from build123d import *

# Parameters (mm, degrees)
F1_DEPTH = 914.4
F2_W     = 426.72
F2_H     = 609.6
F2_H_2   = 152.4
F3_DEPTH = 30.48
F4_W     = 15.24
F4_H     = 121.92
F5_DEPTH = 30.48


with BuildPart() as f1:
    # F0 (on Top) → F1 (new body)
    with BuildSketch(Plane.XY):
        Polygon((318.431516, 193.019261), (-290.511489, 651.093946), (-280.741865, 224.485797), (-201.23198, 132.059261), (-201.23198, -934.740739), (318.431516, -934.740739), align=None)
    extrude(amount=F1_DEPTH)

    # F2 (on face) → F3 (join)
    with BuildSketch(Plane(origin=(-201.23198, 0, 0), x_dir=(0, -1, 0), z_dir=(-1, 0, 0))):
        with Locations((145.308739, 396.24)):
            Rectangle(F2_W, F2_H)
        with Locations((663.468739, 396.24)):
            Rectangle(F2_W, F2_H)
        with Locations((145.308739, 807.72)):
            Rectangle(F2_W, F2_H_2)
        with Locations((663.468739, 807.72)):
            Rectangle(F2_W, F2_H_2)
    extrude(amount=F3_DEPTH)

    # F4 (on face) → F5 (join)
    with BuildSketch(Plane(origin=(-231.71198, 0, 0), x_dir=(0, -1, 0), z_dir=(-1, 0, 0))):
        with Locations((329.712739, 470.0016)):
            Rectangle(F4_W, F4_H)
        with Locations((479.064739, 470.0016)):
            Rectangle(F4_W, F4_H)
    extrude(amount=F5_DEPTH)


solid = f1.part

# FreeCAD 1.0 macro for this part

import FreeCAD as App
import Part
import Sketcher
Q = App.Units.Quantity


def add_polygon(sketch, points):
    """Adds a closed chain of lines whose ends are joined by coincident constraints."""
    first, n = sketch.GeometryCount, len(points)
    for a, b in zip(points, points[1:] + points[:1]):
        sketch.addGeometry(Part.LineSegment(App.Vector(*a, 0), App.Vector(*b, 0)), False)
    for i in range(n):
        sketch.addConstraint(Sketcher.Constraint("Coincident", first + i, 2, first + (i + 1) % n, 1))

doc = App.newDocument("Part")
body = doc.addObject("PartDesign::Body", "Body")

# Sketch on XY plane
sketch1 = body.newObject("Sketcher::SketchObject", "Sketch")
sketch1.AttachmentSupport = (doc.getObject("XY_Plane"), [""])
sketch1.MapMode = "FlatFace"
add_polygon(sketch1, [(318, 193), (-291, 651), (-281, 224), (-201, 132), (-201, -935), (318, -935)])  # lines 0-5
sketch1.addConstraint(Sketcher.Constraint("Vertical", 3))
sketch1.addConstraint(Sketcher.Constraint("Horizontal", 4))
sketch1.addConstraint(Sketcher.Constraint("Vertical", 5))
sketch1.addConstraint(Sketcher.Constraint("DistanceY", 3, 2, 3, 1, Q("42 in")))
sketch1.addConstraint(Sketcher.Constraint("Distance", 0, Q("30 in")))
sketch1.addConstraint(Sketcher.Constraint("DistanceY", 5, 1, 5, 2, Q("44.4 in")))
sketch1.addConstraint(Sketcher.Constraint("Distance", 1, Q("16.8 in")))
sketch1.addConstraint(Sketcher.Constraint("Distance", 2, Q("4.8 in")))
sketch1.addConstraint(Sketcher.Constraint("DistanceX", 4, 1, 4, 2, 519.663496))
sketch1.addConstraint(Sketcher.Constraint("DistanceX", 0, 2, -1, 1, 290.511489))
sketch1.addConstraint(Sketcher.Constraint("DistanceX", 2, 2, -1, 1, 201.23198))
sketch1.addConstraint(Sketcher.Constraint("DistanceY", -1, 1, 2, 2, 132.059261))
pad1 = body.newObject("PartDesign::Pad", "Pad")
pad1.Profile = sketch1
pad1.Length = Q("36 in")

# Sketch on YZ plane
sketch2 = body.newObject("Sketcher::SketchObject", "Sketch001")
sketch2.AttachmentSupport = (doc.getObject("YZ_Plane"), [""])
sketch2.MapMode = "FlatFace"
sketch2.AttachmentOffset = App.Placement(App.Vector(0, 0, -201.23198), App.Rotation())
add_polygon(sketch2, [(68, 701), (68, 91), (-359, 91), (-359, 701)])  # lines 0-3
add_polygon(sketch2, [(-450, 701), (-450, 91), (-877, 91), (-877, 701)])  # lines 4-7
add_polygon(sketch2, [(68, 884), (68, 732), (-359, 732), (-359, 884)])  # lines 8-11
add_polygon(sketch2, [(-450, 884), (-450, 732), (-877, 732), (-877, 884)])  # lines 12-15
sketch2.addConstraint(Sketcher.Constraint("Vertical", 0))
sketch2.addConstraint(Sketcher.Constraint("Horizontal", 1))
sketch2.addConstraint(Sketcher.Constraint("Vertical", 2))
sketch2.addConstraint(Sketcher.Constraint("Horizontal", 3))
sketch2.addConstraint(Sketcher.Constraint("Vertical", 4))
sketch2.addConstraint(Sketcher.Constraint("Horizontal", 5))
sketch2.addConstraint(Sketcher.Constraint("Vertical", 6))
sketch2.addConstraint(Sketcher.Constraint("Horizontal", 7))
sketch2.addConstraint(Sketcher.Constraint("Vertical", 8))
sketch2.addConstraint(Sketcher.Constraint("Horizontal", 9))
sketch2.addConstraint(Sketcher.Constraint("Vertical", 10))
sketch2.addConstraint(Sketcher.Constraint("Horizontal", 11))
sketch2.addConstraint(Sketcher.Constraint("Vertical", 12))
sketch2.addConstraint(Sketcher.Constraint("Horizontal", 13))
sketch2.addConstraint(Sketcher.Constraint("Vertical", 14))
sketch2.addConstraint(Sketcher.Constraint("Horizontal", 15))
sketch2.addConstraint(Sketcher.Constraint("Horizontal", 1, 2, 4, 2))
sketch2.addConstraint(Sketcher.Constraint("Horizontal", 3, 2, 6, 2))
sketch2.addConstraint(Sketcher.Constraint("Horizontal", 9, 2, 12, 2))
sketch2.addConstraint(Sketcher.Constraint("Horizontal", 11, 2, 14, 2))
sketch2.addConstraint(Sketcher.Constraint("Vertical", 3, 2, 8, 2))
sketch2.addConstraint(Sketcher.Constraint("Vertical", 2, 2, 9, 2))
sketch2.addConstraint(Sketcher.Constraint("Vertical", 7, 2, 12, 2))
sketch2.addConstraint(Sketcher.Constraint("Vertical", 6, 2, 13, 2))
sketch2.addConstraint(Sketcher.Constraint("Equal", 3, 5))
sketch2.addConstraint(Sketcher.Constraint("DistanceY", 0, 2, 0, 1, Q("24 in")))
sketch2.addConstraint(Sketcher.Constraint("DistanceY", 8, 2, 8, 1, Q("6 in")))
sketch2.addConstraint(Sketcher.Constraint("DistanceX", 1, 2, 1, 1, Q("16.8 in")))
sketch2.addConstraint(Sketcher.Constraint("DistanceY", -1, 1, 0, 2, Q("3.6 in")))
sketch2.addConstraint(Sketcher.Constraint("DistanceY", -1, 1, 8, 2, Q("28.8 in")))
sketch2.addConstraint(Sketcher.Constraint("DistanceX", 4, 2, 1, 2, Q("3.6 in")))
sketch2.addConstraint(Sketcher.Constraint("DistanceX", -1, 1, 0, 2, 68.051261))
pad2 = body.newObject("PartDesign::Pad", "Pad001")
pad2.Profile = sketch2
pad2.Length = Q("1.2 in")
pad2.Reversed = True

# Sketch on YZ plane
sketch3 = body.newObject("Sketcher::SketchObject", "Sketch002")
sketch3.AttachmentSupport = (doc.getObject("YZ_Plane"), [""])
sketch3.MapMode = "FlatFace"
sketch3.AttachmentOffset = App.Placement(App.Vector(0, 0, -231.71198), App.Rotation())
add_polygon(sketch3, [(-322, 531), (-322, 409), (-337, 409), (-337, 531)])  # lines 0-3
add_polygon(sketch3, [(-471, 531), (-471, 409), (-487, 409), (-487, 531)])  # lines 4-7
sketch3.addConstraint(Sketcher.Constraint("Vertical", 0))
sketch3.addConstraint(Sketcher.Constraint("Horizontal", 1))
sketch3.addConstraint(Sketcher.Constraint("Vertical", 2))
sketch3.addConstraint(Sketcher.Constraint("Horizontal", 3))
sketch3.addConstraint(Sketcher.Constraint("Vertical", 4))
sketch3.addConstraint(Sketcher.Constraint("Horizontal", 5))
sketch3.addConstraint(Sketcher.Constraint("Vertical", 6))
sketch3.addConstraint(Sketcher.Constraint("Horizontal", 7))
sketch3.addConstraint(Sketcher.Constraint("Horizontal", 1, 2, 4, 2))
sketch3.addConstraint(Sketcher.Constraint("Horizontal", 3, 2, 6, 2))
sketch3.addConstraint(Sketcher.Constraint("Equal", 3, 5))
sketch3.addConstraint(Sketcher.Constraint("DistanceX", 1, 2, 1, 1, Q("0.6 in")))
sketch3.addConstraint(Sketcher.Constraint("DistanceY", 0, 2, 0, 1, Q("4.8 in")))
sketch3.addConstraint(Sketcher.Constraint("DistanceX", 4, 2, 1, 2, Q("5.28 in")))
sketch3.addConstraint(Sketcher.Constraint("DistanceY", -1, 1, 0, 2, Q("16.104 in")))
sketch3.addConstraint(Sketcher.Constraint("DistanceX", 0, 2, -1, 1, 322.092739))
pad3 = body.newObject("PartDesign::Pad", "Pad002")
pad3.Profile = sketch3
pad3.Length = Q("1.2 in")
pad3.Reversed = True

doc.recompute()
